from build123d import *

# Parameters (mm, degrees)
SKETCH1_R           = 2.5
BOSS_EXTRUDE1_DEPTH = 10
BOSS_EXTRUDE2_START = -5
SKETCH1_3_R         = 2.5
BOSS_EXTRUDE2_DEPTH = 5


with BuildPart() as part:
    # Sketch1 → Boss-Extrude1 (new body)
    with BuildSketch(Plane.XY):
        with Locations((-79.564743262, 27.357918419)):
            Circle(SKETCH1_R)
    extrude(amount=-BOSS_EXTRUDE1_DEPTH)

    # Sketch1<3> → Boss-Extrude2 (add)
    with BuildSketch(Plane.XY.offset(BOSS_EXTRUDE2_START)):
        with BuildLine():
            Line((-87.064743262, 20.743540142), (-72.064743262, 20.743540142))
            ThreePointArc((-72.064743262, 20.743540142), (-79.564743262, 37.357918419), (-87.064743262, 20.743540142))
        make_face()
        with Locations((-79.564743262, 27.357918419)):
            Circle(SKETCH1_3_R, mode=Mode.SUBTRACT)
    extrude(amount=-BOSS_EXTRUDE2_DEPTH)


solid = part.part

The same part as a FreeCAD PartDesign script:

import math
import FreeCAD as App
import Part
import Sketcher
Q = App.Units.Quantity

doc = App.newDocument("Part")
body = doc.addObject("PartDesign::Body", "Body")

# Sketch on XY plane
sketch1 = body.newObject("Sketcher::SketchObject", "Sketch")
sketch1.AttachmentSupport = (doc.getObject("XY_Plane"), [""])
sketch1.MapMode = "FlatFace"
sketch1.addGeometry(Part.Circle(App.Vector(-79.6, 27.4, 0), App.Vector(0, 0, 1), 2.5), False)
sketch1.addConstraint(Sketcher.Constraint("Diameter", 0, Q("5 mm")))
sketch1.addConstraint(Sketcher.Constraint("DistanceY", -1, 1, 0, 3, Q("27.357918 mm")))
sketch1.addConstraint(Sketcher.Constraint("DistanceX", 0, 3, -1, 1, Q("79.564743 mm")))
pad1 = body.newObject("PartDesign::Pad", "Pad")
pad1.Profile = sketch1
pad1.Length = 10
pad1.Reversed = True

# Sketch on XY plane
sketch2 = body.newObject("Sketcher::SketchObject", "Sketch001")
sketch2.AttachmentSupport = (doc.getObject("XY_Plane"), [""])
sketch2.MapMode = "FlatFace"
sketch2.AttachmentOffset = App.Placement(App.Vector(0, 0, -5), App.Rotation())
sketch2.addGeometry(Part.LineSegment(App.Vector(-87.1, 20.7, 0), App.Vector(-72.1, 20.7, 0)), False)
sketch2.addGeometry(Part.ArcOfCircle(Part.Circle(App.Vector(-79.6, 27.4, 0), App.Vector(0, 0, 1), 10), math.radians(-41), math.radians(221)), False)
sketch2.addGeometry(Part.Circle(App.Vector(-79.6, 27.4, 0), App.Vector(0, 0, 1), 2.5), False)
sketch2.addConstraint(Sketcher.Constraint("Coincident", 0, 1, 1, 2))
sketch2.addConstraint(Sketcher.Constraint("Coincident", 1, 1, 0, 2))
sketch2.addConstraint(Sketcher.Constraint("Horizontal", 0))
sketch2.addConstraint(Sketcher.Constraint("Coincident", 2, 3, 1, 3))
sketch2.addConstraint(Sketcher.Constraint("Diameter", 2, Q("5 mm")))
sketch2.addConstraint(Sketcher.Constraint("Radius", 1, Q("10 mm")))
sketch2.addConstraint(Sketcher.Constraint("DistanceX", 0, 1, 0, 2, Q("15 mm")))
sketch2.addConstraint(Sketcher.Constraint("DistanceY", -1, 1, 1, 3, Q("27.357918 mm")))
sketch2.addConstraint(Sketcher.Constraint("DistanceX", 1, 3, -1, 1, Q("79.564743 mm")))
pad2 = body.newObject("PartDesign::Pad", "Pad001")
pad2.Profile = sketch2
pad2.Length = 5
pad2.Reversed = True

doc.recompute()
